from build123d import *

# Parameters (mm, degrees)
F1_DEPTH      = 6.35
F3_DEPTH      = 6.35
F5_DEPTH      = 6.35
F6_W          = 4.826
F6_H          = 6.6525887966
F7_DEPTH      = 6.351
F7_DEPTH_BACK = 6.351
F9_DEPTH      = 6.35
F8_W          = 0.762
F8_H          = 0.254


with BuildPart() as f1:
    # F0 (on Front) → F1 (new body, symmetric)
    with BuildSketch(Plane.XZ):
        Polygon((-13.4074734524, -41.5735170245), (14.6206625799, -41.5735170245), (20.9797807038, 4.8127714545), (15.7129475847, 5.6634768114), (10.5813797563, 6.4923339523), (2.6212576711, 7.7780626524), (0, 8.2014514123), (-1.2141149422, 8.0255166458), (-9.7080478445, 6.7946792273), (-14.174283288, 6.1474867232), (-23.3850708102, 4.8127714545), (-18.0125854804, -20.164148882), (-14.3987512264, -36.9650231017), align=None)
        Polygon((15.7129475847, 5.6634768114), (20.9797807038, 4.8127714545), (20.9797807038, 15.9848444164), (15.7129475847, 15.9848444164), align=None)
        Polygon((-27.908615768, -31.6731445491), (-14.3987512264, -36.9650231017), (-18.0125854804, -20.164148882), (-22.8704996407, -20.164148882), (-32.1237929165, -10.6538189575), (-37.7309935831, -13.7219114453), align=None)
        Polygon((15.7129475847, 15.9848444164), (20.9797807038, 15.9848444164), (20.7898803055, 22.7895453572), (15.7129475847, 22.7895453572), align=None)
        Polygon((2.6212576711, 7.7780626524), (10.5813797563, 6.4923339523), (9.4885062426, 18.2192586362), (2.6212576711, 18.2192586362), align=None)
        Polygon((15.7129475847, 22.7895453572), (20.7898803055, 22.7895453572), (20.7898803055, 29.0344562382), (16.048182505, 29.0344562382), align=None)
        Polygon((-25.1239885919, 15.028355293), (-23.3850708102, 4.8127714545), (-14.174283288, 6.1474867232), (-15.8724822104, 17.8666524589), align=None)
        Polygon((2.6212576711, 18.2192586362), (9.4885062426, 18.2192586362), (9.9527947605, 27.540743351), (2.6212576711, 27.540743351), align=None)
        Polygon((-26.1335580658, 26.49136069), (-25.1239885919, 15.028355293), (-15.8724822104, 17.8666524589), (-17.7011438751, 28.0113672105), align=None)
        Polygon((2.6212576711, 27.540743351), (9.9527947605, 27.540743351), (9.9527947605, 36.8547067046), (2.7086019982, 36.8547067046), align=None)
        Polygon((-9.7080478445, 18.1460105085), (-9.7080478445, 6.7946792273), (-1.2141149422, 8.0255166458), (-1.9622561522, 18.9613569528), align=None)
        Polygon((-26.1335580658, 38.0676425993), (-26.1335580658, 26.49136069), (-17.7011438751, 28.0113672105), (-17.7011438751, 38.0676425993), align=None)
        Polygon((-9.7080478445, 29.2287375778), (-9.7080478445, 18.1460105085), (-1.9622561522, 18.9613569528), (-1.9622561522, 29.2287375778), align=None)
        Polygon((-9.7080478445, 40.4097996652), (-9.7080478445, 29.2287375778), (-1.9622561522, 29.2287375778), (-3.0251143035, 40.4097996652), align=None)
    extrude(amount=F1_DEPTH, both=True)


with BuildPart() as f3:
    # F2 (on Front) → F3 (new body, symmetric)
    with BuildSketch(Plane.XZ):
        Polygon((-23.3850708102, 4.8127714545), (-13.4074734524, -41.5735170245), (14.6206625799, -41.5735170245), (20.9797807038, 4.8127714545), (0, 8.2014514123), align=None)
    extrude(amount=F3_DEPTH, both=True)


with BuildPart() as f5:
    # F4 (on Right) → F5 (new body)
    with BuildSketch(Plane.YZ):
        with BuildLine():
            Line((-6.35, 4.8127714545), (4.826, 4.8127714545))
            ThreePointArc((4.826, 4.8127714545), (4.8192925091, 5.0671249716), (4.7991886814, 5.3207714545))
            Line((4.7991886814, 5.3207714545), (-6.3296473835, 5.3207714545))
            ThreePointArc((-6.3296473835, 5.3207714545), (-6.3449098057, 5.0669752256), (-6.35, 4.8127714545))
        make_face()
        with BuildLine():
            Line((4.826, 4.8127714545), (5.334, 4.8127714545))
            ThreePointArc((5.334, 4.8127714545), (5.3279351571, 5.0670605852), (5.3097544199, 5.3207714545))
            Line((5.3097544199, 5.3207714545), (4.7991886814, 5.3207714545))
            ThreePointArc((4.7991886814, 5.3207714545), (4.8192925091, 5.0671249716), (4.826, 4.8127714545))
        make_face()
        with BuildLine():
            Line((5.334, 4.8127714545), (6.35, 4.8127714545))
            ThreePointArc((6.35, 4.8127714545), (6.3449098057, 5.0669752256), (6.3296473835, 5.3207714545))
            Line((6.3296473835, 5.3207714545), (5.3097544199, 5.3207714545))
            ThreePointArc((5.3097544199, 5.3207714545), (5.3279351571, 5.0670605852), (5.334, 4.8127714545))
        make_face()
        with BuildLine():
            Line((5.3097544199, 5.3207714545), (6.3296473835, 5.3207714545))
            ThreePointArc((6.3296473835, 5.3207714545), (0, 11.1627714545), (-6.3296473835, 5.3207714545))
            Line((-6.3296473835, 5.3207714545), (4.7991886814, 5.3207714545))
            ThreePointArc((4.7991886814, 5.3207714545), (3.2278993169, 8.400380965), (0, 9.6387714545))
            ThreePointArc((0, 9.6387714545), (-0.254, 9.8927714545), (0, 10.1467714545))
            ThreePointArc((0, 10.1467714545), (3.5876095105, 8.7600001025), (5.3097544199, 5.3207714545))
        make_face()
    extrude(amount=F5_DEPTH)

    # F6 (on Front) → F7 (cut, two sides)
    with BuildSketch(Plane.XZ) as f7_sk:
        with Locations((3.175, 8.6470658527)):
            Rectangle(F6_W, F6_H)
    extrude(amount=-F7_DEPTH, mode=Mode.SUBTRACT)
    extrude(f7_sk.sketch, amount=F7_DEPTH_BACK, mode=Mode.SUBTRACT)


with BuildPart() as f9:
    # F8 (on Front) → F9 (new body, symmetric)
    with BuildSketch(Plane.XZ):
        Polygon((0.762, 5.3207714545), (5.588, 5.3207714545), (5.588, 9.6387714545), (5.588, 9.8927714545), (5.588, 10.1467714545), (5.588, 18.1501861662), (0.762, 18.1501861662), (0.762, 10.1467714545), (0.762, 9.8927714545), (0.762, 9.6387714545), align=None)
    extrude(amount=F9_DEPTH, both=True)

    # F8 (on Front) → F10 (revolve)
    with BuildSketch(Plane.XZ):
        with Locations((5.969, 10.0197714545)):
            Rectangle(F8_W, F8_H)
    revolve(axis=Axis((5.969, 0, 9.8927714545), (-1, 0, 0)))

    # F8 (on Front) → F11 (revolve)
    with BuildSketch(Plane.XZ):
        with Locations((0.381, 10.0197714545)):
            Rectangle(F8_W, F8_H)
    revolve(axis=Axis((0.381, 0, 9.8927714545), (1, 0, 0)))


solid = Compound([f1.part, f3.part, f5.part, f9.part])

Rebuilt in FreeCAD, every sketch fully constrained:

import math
import FreeCAD as App
import Part
import Sketcher
from FreeCAD import Vector
Q = App.Units.Quantity


def add_polygon(sketch, points):
    """Adds a closed chain of lines whose ends are joined by coincident constraints."""
    first, n = sketch.GeometryCount, len(points)
    for a, b in zip(points, points[1:] + points[:1]):
        sketch.addGeometry(Part.LineSegment(App.Vector(*a, 0), App.Vector(*b, 0)), False)
    for i in range(n):
        sketch.addConstraint(Sketcher.Constraint("Coincident", first + i, 2, first + (i + 1) % n, 1))

doc = App.newDocument("Part")
body = doc.addObject("PartDesign::Body", "Body")

sketch1 = body.newObject("Sketcher::SketchObject", "Sketch")
sketch1.AttachmentSupport = (doc.getObject("XZ_Plane"), [""])
sketch1.MapMode = "FlatFace"
add_polygon(sketch1, [(-13.407473, -41.573517), (14.620663, -41.573517), (20.979781, 4.812771), (20.979781, 15.984844), (20.78988, 22.789545), (20.78988, 29.034456), (16.048183, 29.034456), (15.712948, 22.789545), (15.712948, 5.663477), (10.58138, 6.492334), (9.488506, 18.219259), (9.952795, 27.540743), (9.952795, 36.854707), (2.708602, 36.854707), (2.621258, 27.540743), (2.621258, 7.778063), (0, 8.201451), (-1.214115, 8.025517), (-1.962256, 18.961357), (-1.962256, 29.228738), (-3.025114, 40.4098), (-9.708048, 40.4098), (-9.708048, 6.794679), (-14.174283, 6.147487), (-15.872482, 17.866652), (-17.701144, 28.011367), (-17.701144, 38.067643), (-26.133558, 38.067643), (-26.133558, 26.491361), (-25.123989, 15.028355), (-23.385071, 4.812771), (-18.012585, -20.164149), (-22.8705, -20.164149), (-32.123793, -10.653819), (-37.730994, -13.721911), (-27.908616, -31.673145), (-14.398751, -36.965023)])
sketch1.addConstraint([
    Sketcher.Constraint("Horizontal", 0),
    Sketcher.Constraint("Vertical", 2),
    Sketcher.Constraint("Vertical", 4),
    Sketcher.Constraint("Horizontal", 5),
    Sketcher.Constraint("Vertical", 7),
    Sketcher.Constraint("Vertical", 11),
    Sketcher.Constraint("Horizontal", 12),
    Sketcher.Constraint("Vertical", 14),
    Sketcher.Constraint("Vertical", 18),
    Sketcher.Constraint("Horizontal", 20),
    Sketcher.Constraint("Vertical", 21),
    Sketcher.Constraint("Vertical", 25),
    Sketcher.Constraint("Horizontal", 26),
    Sketcher.Constraint("Vertical", 27),
    Sketcher.Constraint("Horizontal", 31),
    Sketcher.Constraint("PointOnObject", 15, 2, -2),
    Sketcher.Constraint("DistanceX", 16, 2, -1, 1, Q("0.0477998 in")),
    Sketcher.Constraint("DistanceX", 33, 2, 29, 2, Q("0.5648001 in")),
    Sketcher.Constraint("Distance", 17, Q("10.961401 mm")),
    Sketcher.Constraint("Distance", 36, Q("4.713899 mm")),
    Sketcher.Constraint("DistanceY", 4, 1, 4, 2, Q("6.244911 mm")),
    Sketcher.Constraint("DistanceY", 7, 2, 7, 1, Q("17.126069 mm")),
    Sketcher.Constraint("DistanceY", 14, 2, 14, 1, Q("19.762681 mm")),
    Sketcher.Constraint("DistanceY", 18, 1, 18, 2, Q("10.267381 mm")),
    Sketcher.Constraint("DistanceY", 21, 2, 21, 1, Q("33.61512 mm")),
    Sketcher.Constraint("DistanceY", 27, 2, 27, 1, Q("11.576282 mm")),
    Sketcher.Constraint("DistanceX", -1, 1, 12, 2, Q("2.708602 mm")),
    Sketcher.Constraint("DistanceY", -1, 1, 19, 2, Q("40.4098 mm")),
    Sketcher.Constraint("DistanceX", 31, 2, -1, 1, Q("22.8705 mm")),
    Sketcher.Constraint("DistanceX", 3, 2, 2, 2, Q("0.1899 mm")),
    Sketcher.Constraint("DistanceY", 2, 2, 3, 2, Q("6.804701 mm")),
    Sketcher.Constraint("DistanceX", 5, 2, 2, 2, Q("4.931598 mm")),
    Sketcher.Constraint("DistanceY", 2, 2, 6, 2, Q("6.804701 mm")),
    Sketcher.Constraint("DistanceX", 8, 2, 1, 2, Q("10.398401 mm")),
    Sketcher.Constraint("DistanceY", 9, 2, 17, 2, Q("0.742098 mm")),
    Sketcher.Constraint("DistanceX", 23, 2, 22, 2, Q("1.698199 mm")),
    Sketcher.Constraint("DistanceY", 30, 2, 15, 2, Q("28.3656 mm")),
    Sketcher.Constraint("DistanceX", 33, 2, 32, 2, Q("5.607201 mm")),
    Sketcher.Constraint("DistanceY", 33, 2, 22, 2, Q("19.869398 mm")),
    Sketcher.Constraint("Distance", 9, Q("11.777739 mm")),
    Sketcher.Constraint("Distance", 10, Q("9.33304 mm")),
    Sketcher.Constraint("Distance", 15, Q("2.655231 mm")),
    Sketcher.Constraint("Distance", 29, Q("10.362528 mm")),
    Sketcher.Constraint("Distance", 32, Q("13.26913 mm")),
    Sketcher.Constraint("Distance", 35, Q("14.509322 mm")),
    Sketcher.Constraint("DistanceX", 0, 1, 0, 2, Q("28.028136 mm")),
    Sketcher.Constraint("DistanceX", 12, 2, 12, 1, Q("7.244193 mm")),
    Sketcher.Constraint("DistanceX", 20, 2, 20, 1, Q("6.682934 mm")),
    Sketcher.Constraint("DistanceX", 26, 2, 26, 1, Q("8.432414 mm")),
    Sketcher.Constraint("DistanceX", 31, 2, 31, 1, Q("4.857914 mm")),
    Sketcher.Constraint("DistanceY", 2, 1, 2, 2, Q("11.172073 mm")),
    Sketcher.Constraint("DistanceY", 11, 1, 11, 2, Q("9.313963 mm")),
    Sketcher.Constraint("DistanceY", 25, 1, 25, 2, Q("10.056275 mm")),
    Sketcher.Constraint("DistanceX", -1, 1, 1, 2, Q("20.979781 mm")),
    Sketcher.Constraint("DistanceY", -1, 1, 1, 2, Q("4.812771 mm")),
    Sketcher.Constraint("DistanceY", -1, 1, 9, 2, Q("18.219259 mm")),
    Sketcher.Constraint("DistanceY", -1, 1, 15, 2, Q("8.201451 mm")),
    Sketcher.Constraint("DistanceX", 26, 2, -1, 1, Q("26.133558 mm")),
    Sketcher.Constraint("DistanceY", -1, 1, 27, 2, Q("26.491361 mm")),
    Sketcher.Constraint("DistanceX", 28, 2, -1, 1, Q("25.123989 mm")),
    Sketcher.Constraint("DistanceX", 29, 2, -1, 1, Q("23.385071 mm")),
    Sketcher.Constraint("DistanceY", -1, 1, 29, 2, Q("4.812771 mm")),
    Sketcher.Constraint("DistanceY", 33, 2, -1, 1, Q("13.721911 mm")),
    Sketcher.Constraint("DistanceX", 35, 2, -1, 1, Q("14.398751 mm")),
    Sketcher.Constraint("DistanceX", 0, 2, 1, 2, Q("6.359118 mm")),
    Sketcher.Constraint("DistanceY", 0, 2, 1, 2, Q("46.386288 mm")),
    Sketcher.Constraint("DistanceY", 8, 2, 2, 2, Q("9.49251 mm")),
    Sketcher.Constraint("DistanceX", 9, 2, 6, 2, Q("6.224441 mm")),
    Sketcher.Constraint("DistanceX", 13, 2, 9, 2, Q("6.867249 mm")),
    Sketcher.Constraint("DistanceY", 16, 2, 9, 2, Q("10.193742 mm")),
    Sketcher.Constraint("DistanceX", 19, 2, 18, 2, Q("1.062858 mm")),
    Sketcher.Constraint("DistanceX", 22, 2, 16, 2, Q("12.960168 mm")),
    Sketcher.Constraint("DistanceY", 23, 2, 25, 2, Q("20.20099 mm")),
    Sketcher.Constraint("DistanceX", 34, 2, 30, 2, Q("9.89603 mm")),
])
pad1 = body.newObject("PartDesign::Pad", "Pad")
pad1.Profile = sketch1
pad1.Length = Q("0.5 in")
pad1.Midplane = True
body2 = doc.addObject("PartDesign::Body", "Body001")

sketch2 = body2.newObject("Sketcher::SketchObject", "Sketch001")
sketch2.AttachmentSupport = (doc.getObject("XZ_Plane001"), [""])
sketch2.MapMode = "FlatFace"
add_polygon(sketch2, [(-23, 5), (-13, -42), (15, -42), (21, 5), (0, 8)])
sketch2.addConstraint([
    Sketcher.Constraint("Horizontal", 1),
    Sketcher.Constraint("PointOnObject", 3, 2, -2),
    Sketcher.Constraint("Horizontal", 2, 2, 4, 2),
    Sketcher.Constraint("Distance", 3, Q("21.251691 mm")),
    Sketcher.Constraint("Distance", 4, Q("23.629318 mm")),
    Sketcher.Constraint("DistanceX", 1, 1, 1, 2, Q("28.028136 mm")),
    Sketcher.Constraint("DistanceX", -1, 1, 2, 2, Q("20.979781 mm")),
    Sketcher.Constraint("DistanceY", -1, 1, 2, 2, Q("4.812771 mm")),
    Sketcher.Constraint("DistanceX", 1, 2, 2, 2, Q("6.359118 mm")),
    Sketcher.Constraint("DistanceY", 1, 2, 2, 2, Q("46.386288 mm")),
])
pad2 = body2.newObject("PartDesign::Pad", "Pad001")
pad2.Profile = sketch2
pad2.Length = Q("0.5 in")
pad2.Midplane = True
body3 = doc.addObject("PartDesign::Body", "Body002")

sketch3 = body3.newObject("Sketcher::SketchObject", "Sketch002")
sketch3.AttachmentSupport = (doc.getObject("YZ_Plane002"), [""])
sketch3.MapMode = "FlatFace"
sketch3.addGeometry([
    Part.LineSegment(Vector(-6.35, 4.81, 0), Vector(6.35, 4.81, 0)),
    Part.ArcOfCircle(Part.Circle(Vector(0, 4.81, 0), Vector(0, 0, 1), 6.35), math.radians(0), math.radians(4.59)),
    Part.ArcOfCircle(Part.Circle(Vector(0, 4.81, 0), Vector(0, 0, 1), 6.35), math.radians(5), math.radians(175)),
    Part.ArcOfCircle(Part.Circle(Vector(0, 4.81, 0), Vector(0, 0, 1), 6.35), math.radians(175.41), math.radians(180)),
    Part.LineSegment(Vector(5.31, 5.32, 0), Vector(4.8, 5.32, 0)),
    Part.ArcOfCircle(Part.Circle(Vector(0, 4.81, 0), Vector(0, 0, 1), 4.83), math.radians(6), math.radians(90)),
    Part.ArcOfCircle(Part.Circle(Vector(0, 9.89, 0), Vector(0, 0, 1), 0.25), math.radians(90), math.radians(270)),
    Part.ArcOfCircle(Part.Circle(Vector(0, 4.81, 0), Vector(0, 0, 1), 5.33), math.radians(5), math.radians(90)),
], False)
sketch3.addConstraint([
    Sketcher.Constraint("Coincident", 0, 2, 1, 1),
    Sketcher.Constraint("Tangent", 1, 2, 2, 1),
    Sketcher.Constraint("Tangent", 2, 2, 3, 1),
    Sketcher.Constraint("Coincident", 3, 2, 0, 1),
    Sketcher.Constraint("Coincident", 4, 2, 5, 1),
    Sketcher.Constraint("Tangent", 5, 2, 6, 2),
    Sketcher.Constraint("Tangent", 6, 1, 7, 2),
    Sketcher.Constraint("Coincident", 7, 1, 4, 1),
    Sketcher.Constraint("Horizontal", 0),
    Sketcher.Constraint("Horizontal", 4),
    Sketcher.Constraint("Coincident", 3, 3, 1, 3),
    Sketcher.Constraint("Coincident", 5, 3, 1, 3),
    Sketcher.Constraint("Coincident", 7, 3, 1, 3),
    Sketcher.Constraint("Symmetric", 1, 2, 2, 2, -2),
    Sketcher.Constraint("PointOnObject", 6, 3, -2),
    Sketcher.Constraint("Horizontal", 7, 3, 0, 2),
    Sketcher.Constraint("Horizontal", 2, 2, 4, 2),
    Sketcher.Constraint("Radius", 1, Q("0.25 in")),
    Sketcher.Constraint("Radius", 5, Q("0.19 in")),
    Sketcher.Constraint("Radius", 6, Q("0.01 in")),
    Sketcher.Constraint("DistanceY", 0, 2, 1, 2, Q("0.02 in")),
    Sketcher.Constraint("DistanceY", -1, 1, 1, 3, Q("4.812771 mm")),
])
pad3 = body3.newObject("PartDesign::Pad", "Pad002")
pad3.Profile = sketch3
pad3.Length = Q("0.25 in")

sketch4 = body3.newObject("Sketcher::SketchObject", "Sketch003")
sketch4.AttachmentSupport = (doc.getObject("XZ_Plane002"), [""])
sketch4.MapMode = "FlatFace"
add_polygon(sketch4, [(0.8, 12), (0.8, 5.3), (5.6, 5.3), (5.6, 12)])
sketch4.addConstraint([
    Sketcher.Constraint("Vertical", 0),
    Sketcher.Constraint("Horizontal", 1),
    Sketcher.Constraint("Vertical", 2),
    Sketcher.Constraint("Horizontal", 3),
    Sketcher.Constraint("DistanceX", 1, 1, 1, 2, Q("0.19 in")),
    Sketcher.Constraint("DistanceX", -1, 1, 0, 2, Q("0.03 in")),
    Sketcher.Constraint("DistanceY", 0, 2, 0, 1, Q("6.652589 mm")),
    Sketcher.Constraint("DistanceY", -1, 1, 0, 2, Q("5.320771 mm")),
])
pocket1 = body3.newObject("PartDesign::Pocket", "Pocket")
pocket1.Profile = sketch4
pocket1.Type = "ThroughAll"
pocket1.Midplane = True
body4 = doc.addObject("PartDesign::Body", "Body003")

sketch5 = body4.newObject("Sketcher::SketchObject", "Sketch004")
sketch5.AttachmentSupport = (doc.getObject("XZ_Plane003"), [""])
sketch5.MapMode = "FlatFace"
add_polygon(sketch5, [(0.8, 5.3), (5.6, 5.3), (5.6, 18.2), (0.8, 18.2)])
sketch5.addConstraint([
    Sketcher.Constraint("Horizontal", 0),
    Sketcher.Constraint("Vertical", 1),
    Sketcher.Constraint("Horizontal", 2),
    Sketcher.Constraint("Vertical", 3),
    Sketcher.Constraint("DistanceX", 0, 1, 0, 2, Q("0.19 in")),
    Sketcher.Constraint("DistanceX", -1, 1, 0, 2, Q("0.22 in")),
    Sketcher.Constraint("DistanceY", 1, 1, 1, 2, Q("12.829415 mm")),
    Sketcher.Constraint("DistanceY", -1, 1, 0, 2, Q("5.320771 mm")),
])
pad4 = body4.newObject("PartDesign::Pad", "Pad003")
pad4.Profile = sketch5
pad4.Length = Q("0.5 in")
pad4.Midplane = True

sketch6 = body4.newObject("Sketcher::SketchObject", "Sketch005")
sketch6.AttachmentSupport = (doc.getObject("XZ_Plane003"), [""])
sketch6.MapMode = "FlatFace"
add_polygon(sketch6, [(5.59, 10.15), (5.59, 9.89), (6.35, 9.89), (6.35, 10.15)])
sketch6.addGeometry(Part.LineSegment(Vector(6.35, 9.89, 0), Vector(5.59, 9.89, 0)), True)
sketch6.addConstraint([
    Sketcher.Constraint("Vertical", 0),
    Sketcher.Constraint("Horizontal", 1),
    Sketcher.Constraint("Vertical", 2),
    Sketcher.Constraint("Horizontal", 3),
    Sketcher.Constraint("Horizontal", 4),
    Sketcher.Constraint("Coincident", 4, 1, 1, 2),
    Sketcher.Constraint("Vertical", 3, 2, 4, 2),
    Sketcher.Constraint("DistanceX", 1, 1, 1, 2, Q("0.03 in")),
    Sketcher.Constraint("DistanceY", 0, 2, 0, 1, Q("0.01 in")),
    Sketcher.Constraint("DistanceX", -1, 1, 0, 2, Q("0.22 in")),
    Sketcher.Constraint("DistanceY", -1, 1, 0, 2, Q("9.892771 mm")),
])
revolution = body4.newObject("PartDesign::Revolution", "Revolution")
revolution.Profile = sketch6
revolution.ReferenceAxis = (sketch6, ["Axis0"])
revolution.Angle = 360

sketch7 = body4.newObject("Sketcher::SketchObject", "Sketch006")
sketch7.AttachmentSupport = (doc.getObject("XZ_Plane003"), [""])
sketch7.MapMode = "FlatFace"
add_polygon(sketch7, [(0, 10.15), (0, 9.89), (0.76, 9.89), (0.76, 10.15)])
sketch7.addGeometry(Part.LineSegment(Vector(0, 9.89, 0), Vector(0.76, 9.89, 0)), True)
sketch7.addConstraint([
    Sketcher.Constraint("Vertical", 0),
    Sketcher.Constraint("Horizontal", 1),
    Sketcher.Constraint("Vertical", 2),
    Sketcher.Constraint("Horizontal", 3),
    Sketcher.Constraint("Horizontal", 4),
    Sketcher.Constraint("Coincident", 4, 1, 0, 2),
    Sketcher.Constraint("PointOnObject", 0, 2, -2),
    Sketcher.Constraint("Vertical", 2, 2, 4, 2),
    Sketcher.Constraint("DistanceX", 1, 1, 1, 2, Q("0.03 in")),
    Sketcher.Constraint("DistanceY", 0, 2, 0, 1, Q("0.01 in")),
    Sketcher.Constraint("DistanceY", -1, 1, 0, 2, Q("9.892771 mm")),
])
revolution2 = body4.newObject("PartDesign::Revolution", "Revolution001")
revolution2.Profile = sketch7
revolution2.ReferenceAxis = (sketch7, ["Axis0"])
revolution2.Angle = 360

doc.recompute()
